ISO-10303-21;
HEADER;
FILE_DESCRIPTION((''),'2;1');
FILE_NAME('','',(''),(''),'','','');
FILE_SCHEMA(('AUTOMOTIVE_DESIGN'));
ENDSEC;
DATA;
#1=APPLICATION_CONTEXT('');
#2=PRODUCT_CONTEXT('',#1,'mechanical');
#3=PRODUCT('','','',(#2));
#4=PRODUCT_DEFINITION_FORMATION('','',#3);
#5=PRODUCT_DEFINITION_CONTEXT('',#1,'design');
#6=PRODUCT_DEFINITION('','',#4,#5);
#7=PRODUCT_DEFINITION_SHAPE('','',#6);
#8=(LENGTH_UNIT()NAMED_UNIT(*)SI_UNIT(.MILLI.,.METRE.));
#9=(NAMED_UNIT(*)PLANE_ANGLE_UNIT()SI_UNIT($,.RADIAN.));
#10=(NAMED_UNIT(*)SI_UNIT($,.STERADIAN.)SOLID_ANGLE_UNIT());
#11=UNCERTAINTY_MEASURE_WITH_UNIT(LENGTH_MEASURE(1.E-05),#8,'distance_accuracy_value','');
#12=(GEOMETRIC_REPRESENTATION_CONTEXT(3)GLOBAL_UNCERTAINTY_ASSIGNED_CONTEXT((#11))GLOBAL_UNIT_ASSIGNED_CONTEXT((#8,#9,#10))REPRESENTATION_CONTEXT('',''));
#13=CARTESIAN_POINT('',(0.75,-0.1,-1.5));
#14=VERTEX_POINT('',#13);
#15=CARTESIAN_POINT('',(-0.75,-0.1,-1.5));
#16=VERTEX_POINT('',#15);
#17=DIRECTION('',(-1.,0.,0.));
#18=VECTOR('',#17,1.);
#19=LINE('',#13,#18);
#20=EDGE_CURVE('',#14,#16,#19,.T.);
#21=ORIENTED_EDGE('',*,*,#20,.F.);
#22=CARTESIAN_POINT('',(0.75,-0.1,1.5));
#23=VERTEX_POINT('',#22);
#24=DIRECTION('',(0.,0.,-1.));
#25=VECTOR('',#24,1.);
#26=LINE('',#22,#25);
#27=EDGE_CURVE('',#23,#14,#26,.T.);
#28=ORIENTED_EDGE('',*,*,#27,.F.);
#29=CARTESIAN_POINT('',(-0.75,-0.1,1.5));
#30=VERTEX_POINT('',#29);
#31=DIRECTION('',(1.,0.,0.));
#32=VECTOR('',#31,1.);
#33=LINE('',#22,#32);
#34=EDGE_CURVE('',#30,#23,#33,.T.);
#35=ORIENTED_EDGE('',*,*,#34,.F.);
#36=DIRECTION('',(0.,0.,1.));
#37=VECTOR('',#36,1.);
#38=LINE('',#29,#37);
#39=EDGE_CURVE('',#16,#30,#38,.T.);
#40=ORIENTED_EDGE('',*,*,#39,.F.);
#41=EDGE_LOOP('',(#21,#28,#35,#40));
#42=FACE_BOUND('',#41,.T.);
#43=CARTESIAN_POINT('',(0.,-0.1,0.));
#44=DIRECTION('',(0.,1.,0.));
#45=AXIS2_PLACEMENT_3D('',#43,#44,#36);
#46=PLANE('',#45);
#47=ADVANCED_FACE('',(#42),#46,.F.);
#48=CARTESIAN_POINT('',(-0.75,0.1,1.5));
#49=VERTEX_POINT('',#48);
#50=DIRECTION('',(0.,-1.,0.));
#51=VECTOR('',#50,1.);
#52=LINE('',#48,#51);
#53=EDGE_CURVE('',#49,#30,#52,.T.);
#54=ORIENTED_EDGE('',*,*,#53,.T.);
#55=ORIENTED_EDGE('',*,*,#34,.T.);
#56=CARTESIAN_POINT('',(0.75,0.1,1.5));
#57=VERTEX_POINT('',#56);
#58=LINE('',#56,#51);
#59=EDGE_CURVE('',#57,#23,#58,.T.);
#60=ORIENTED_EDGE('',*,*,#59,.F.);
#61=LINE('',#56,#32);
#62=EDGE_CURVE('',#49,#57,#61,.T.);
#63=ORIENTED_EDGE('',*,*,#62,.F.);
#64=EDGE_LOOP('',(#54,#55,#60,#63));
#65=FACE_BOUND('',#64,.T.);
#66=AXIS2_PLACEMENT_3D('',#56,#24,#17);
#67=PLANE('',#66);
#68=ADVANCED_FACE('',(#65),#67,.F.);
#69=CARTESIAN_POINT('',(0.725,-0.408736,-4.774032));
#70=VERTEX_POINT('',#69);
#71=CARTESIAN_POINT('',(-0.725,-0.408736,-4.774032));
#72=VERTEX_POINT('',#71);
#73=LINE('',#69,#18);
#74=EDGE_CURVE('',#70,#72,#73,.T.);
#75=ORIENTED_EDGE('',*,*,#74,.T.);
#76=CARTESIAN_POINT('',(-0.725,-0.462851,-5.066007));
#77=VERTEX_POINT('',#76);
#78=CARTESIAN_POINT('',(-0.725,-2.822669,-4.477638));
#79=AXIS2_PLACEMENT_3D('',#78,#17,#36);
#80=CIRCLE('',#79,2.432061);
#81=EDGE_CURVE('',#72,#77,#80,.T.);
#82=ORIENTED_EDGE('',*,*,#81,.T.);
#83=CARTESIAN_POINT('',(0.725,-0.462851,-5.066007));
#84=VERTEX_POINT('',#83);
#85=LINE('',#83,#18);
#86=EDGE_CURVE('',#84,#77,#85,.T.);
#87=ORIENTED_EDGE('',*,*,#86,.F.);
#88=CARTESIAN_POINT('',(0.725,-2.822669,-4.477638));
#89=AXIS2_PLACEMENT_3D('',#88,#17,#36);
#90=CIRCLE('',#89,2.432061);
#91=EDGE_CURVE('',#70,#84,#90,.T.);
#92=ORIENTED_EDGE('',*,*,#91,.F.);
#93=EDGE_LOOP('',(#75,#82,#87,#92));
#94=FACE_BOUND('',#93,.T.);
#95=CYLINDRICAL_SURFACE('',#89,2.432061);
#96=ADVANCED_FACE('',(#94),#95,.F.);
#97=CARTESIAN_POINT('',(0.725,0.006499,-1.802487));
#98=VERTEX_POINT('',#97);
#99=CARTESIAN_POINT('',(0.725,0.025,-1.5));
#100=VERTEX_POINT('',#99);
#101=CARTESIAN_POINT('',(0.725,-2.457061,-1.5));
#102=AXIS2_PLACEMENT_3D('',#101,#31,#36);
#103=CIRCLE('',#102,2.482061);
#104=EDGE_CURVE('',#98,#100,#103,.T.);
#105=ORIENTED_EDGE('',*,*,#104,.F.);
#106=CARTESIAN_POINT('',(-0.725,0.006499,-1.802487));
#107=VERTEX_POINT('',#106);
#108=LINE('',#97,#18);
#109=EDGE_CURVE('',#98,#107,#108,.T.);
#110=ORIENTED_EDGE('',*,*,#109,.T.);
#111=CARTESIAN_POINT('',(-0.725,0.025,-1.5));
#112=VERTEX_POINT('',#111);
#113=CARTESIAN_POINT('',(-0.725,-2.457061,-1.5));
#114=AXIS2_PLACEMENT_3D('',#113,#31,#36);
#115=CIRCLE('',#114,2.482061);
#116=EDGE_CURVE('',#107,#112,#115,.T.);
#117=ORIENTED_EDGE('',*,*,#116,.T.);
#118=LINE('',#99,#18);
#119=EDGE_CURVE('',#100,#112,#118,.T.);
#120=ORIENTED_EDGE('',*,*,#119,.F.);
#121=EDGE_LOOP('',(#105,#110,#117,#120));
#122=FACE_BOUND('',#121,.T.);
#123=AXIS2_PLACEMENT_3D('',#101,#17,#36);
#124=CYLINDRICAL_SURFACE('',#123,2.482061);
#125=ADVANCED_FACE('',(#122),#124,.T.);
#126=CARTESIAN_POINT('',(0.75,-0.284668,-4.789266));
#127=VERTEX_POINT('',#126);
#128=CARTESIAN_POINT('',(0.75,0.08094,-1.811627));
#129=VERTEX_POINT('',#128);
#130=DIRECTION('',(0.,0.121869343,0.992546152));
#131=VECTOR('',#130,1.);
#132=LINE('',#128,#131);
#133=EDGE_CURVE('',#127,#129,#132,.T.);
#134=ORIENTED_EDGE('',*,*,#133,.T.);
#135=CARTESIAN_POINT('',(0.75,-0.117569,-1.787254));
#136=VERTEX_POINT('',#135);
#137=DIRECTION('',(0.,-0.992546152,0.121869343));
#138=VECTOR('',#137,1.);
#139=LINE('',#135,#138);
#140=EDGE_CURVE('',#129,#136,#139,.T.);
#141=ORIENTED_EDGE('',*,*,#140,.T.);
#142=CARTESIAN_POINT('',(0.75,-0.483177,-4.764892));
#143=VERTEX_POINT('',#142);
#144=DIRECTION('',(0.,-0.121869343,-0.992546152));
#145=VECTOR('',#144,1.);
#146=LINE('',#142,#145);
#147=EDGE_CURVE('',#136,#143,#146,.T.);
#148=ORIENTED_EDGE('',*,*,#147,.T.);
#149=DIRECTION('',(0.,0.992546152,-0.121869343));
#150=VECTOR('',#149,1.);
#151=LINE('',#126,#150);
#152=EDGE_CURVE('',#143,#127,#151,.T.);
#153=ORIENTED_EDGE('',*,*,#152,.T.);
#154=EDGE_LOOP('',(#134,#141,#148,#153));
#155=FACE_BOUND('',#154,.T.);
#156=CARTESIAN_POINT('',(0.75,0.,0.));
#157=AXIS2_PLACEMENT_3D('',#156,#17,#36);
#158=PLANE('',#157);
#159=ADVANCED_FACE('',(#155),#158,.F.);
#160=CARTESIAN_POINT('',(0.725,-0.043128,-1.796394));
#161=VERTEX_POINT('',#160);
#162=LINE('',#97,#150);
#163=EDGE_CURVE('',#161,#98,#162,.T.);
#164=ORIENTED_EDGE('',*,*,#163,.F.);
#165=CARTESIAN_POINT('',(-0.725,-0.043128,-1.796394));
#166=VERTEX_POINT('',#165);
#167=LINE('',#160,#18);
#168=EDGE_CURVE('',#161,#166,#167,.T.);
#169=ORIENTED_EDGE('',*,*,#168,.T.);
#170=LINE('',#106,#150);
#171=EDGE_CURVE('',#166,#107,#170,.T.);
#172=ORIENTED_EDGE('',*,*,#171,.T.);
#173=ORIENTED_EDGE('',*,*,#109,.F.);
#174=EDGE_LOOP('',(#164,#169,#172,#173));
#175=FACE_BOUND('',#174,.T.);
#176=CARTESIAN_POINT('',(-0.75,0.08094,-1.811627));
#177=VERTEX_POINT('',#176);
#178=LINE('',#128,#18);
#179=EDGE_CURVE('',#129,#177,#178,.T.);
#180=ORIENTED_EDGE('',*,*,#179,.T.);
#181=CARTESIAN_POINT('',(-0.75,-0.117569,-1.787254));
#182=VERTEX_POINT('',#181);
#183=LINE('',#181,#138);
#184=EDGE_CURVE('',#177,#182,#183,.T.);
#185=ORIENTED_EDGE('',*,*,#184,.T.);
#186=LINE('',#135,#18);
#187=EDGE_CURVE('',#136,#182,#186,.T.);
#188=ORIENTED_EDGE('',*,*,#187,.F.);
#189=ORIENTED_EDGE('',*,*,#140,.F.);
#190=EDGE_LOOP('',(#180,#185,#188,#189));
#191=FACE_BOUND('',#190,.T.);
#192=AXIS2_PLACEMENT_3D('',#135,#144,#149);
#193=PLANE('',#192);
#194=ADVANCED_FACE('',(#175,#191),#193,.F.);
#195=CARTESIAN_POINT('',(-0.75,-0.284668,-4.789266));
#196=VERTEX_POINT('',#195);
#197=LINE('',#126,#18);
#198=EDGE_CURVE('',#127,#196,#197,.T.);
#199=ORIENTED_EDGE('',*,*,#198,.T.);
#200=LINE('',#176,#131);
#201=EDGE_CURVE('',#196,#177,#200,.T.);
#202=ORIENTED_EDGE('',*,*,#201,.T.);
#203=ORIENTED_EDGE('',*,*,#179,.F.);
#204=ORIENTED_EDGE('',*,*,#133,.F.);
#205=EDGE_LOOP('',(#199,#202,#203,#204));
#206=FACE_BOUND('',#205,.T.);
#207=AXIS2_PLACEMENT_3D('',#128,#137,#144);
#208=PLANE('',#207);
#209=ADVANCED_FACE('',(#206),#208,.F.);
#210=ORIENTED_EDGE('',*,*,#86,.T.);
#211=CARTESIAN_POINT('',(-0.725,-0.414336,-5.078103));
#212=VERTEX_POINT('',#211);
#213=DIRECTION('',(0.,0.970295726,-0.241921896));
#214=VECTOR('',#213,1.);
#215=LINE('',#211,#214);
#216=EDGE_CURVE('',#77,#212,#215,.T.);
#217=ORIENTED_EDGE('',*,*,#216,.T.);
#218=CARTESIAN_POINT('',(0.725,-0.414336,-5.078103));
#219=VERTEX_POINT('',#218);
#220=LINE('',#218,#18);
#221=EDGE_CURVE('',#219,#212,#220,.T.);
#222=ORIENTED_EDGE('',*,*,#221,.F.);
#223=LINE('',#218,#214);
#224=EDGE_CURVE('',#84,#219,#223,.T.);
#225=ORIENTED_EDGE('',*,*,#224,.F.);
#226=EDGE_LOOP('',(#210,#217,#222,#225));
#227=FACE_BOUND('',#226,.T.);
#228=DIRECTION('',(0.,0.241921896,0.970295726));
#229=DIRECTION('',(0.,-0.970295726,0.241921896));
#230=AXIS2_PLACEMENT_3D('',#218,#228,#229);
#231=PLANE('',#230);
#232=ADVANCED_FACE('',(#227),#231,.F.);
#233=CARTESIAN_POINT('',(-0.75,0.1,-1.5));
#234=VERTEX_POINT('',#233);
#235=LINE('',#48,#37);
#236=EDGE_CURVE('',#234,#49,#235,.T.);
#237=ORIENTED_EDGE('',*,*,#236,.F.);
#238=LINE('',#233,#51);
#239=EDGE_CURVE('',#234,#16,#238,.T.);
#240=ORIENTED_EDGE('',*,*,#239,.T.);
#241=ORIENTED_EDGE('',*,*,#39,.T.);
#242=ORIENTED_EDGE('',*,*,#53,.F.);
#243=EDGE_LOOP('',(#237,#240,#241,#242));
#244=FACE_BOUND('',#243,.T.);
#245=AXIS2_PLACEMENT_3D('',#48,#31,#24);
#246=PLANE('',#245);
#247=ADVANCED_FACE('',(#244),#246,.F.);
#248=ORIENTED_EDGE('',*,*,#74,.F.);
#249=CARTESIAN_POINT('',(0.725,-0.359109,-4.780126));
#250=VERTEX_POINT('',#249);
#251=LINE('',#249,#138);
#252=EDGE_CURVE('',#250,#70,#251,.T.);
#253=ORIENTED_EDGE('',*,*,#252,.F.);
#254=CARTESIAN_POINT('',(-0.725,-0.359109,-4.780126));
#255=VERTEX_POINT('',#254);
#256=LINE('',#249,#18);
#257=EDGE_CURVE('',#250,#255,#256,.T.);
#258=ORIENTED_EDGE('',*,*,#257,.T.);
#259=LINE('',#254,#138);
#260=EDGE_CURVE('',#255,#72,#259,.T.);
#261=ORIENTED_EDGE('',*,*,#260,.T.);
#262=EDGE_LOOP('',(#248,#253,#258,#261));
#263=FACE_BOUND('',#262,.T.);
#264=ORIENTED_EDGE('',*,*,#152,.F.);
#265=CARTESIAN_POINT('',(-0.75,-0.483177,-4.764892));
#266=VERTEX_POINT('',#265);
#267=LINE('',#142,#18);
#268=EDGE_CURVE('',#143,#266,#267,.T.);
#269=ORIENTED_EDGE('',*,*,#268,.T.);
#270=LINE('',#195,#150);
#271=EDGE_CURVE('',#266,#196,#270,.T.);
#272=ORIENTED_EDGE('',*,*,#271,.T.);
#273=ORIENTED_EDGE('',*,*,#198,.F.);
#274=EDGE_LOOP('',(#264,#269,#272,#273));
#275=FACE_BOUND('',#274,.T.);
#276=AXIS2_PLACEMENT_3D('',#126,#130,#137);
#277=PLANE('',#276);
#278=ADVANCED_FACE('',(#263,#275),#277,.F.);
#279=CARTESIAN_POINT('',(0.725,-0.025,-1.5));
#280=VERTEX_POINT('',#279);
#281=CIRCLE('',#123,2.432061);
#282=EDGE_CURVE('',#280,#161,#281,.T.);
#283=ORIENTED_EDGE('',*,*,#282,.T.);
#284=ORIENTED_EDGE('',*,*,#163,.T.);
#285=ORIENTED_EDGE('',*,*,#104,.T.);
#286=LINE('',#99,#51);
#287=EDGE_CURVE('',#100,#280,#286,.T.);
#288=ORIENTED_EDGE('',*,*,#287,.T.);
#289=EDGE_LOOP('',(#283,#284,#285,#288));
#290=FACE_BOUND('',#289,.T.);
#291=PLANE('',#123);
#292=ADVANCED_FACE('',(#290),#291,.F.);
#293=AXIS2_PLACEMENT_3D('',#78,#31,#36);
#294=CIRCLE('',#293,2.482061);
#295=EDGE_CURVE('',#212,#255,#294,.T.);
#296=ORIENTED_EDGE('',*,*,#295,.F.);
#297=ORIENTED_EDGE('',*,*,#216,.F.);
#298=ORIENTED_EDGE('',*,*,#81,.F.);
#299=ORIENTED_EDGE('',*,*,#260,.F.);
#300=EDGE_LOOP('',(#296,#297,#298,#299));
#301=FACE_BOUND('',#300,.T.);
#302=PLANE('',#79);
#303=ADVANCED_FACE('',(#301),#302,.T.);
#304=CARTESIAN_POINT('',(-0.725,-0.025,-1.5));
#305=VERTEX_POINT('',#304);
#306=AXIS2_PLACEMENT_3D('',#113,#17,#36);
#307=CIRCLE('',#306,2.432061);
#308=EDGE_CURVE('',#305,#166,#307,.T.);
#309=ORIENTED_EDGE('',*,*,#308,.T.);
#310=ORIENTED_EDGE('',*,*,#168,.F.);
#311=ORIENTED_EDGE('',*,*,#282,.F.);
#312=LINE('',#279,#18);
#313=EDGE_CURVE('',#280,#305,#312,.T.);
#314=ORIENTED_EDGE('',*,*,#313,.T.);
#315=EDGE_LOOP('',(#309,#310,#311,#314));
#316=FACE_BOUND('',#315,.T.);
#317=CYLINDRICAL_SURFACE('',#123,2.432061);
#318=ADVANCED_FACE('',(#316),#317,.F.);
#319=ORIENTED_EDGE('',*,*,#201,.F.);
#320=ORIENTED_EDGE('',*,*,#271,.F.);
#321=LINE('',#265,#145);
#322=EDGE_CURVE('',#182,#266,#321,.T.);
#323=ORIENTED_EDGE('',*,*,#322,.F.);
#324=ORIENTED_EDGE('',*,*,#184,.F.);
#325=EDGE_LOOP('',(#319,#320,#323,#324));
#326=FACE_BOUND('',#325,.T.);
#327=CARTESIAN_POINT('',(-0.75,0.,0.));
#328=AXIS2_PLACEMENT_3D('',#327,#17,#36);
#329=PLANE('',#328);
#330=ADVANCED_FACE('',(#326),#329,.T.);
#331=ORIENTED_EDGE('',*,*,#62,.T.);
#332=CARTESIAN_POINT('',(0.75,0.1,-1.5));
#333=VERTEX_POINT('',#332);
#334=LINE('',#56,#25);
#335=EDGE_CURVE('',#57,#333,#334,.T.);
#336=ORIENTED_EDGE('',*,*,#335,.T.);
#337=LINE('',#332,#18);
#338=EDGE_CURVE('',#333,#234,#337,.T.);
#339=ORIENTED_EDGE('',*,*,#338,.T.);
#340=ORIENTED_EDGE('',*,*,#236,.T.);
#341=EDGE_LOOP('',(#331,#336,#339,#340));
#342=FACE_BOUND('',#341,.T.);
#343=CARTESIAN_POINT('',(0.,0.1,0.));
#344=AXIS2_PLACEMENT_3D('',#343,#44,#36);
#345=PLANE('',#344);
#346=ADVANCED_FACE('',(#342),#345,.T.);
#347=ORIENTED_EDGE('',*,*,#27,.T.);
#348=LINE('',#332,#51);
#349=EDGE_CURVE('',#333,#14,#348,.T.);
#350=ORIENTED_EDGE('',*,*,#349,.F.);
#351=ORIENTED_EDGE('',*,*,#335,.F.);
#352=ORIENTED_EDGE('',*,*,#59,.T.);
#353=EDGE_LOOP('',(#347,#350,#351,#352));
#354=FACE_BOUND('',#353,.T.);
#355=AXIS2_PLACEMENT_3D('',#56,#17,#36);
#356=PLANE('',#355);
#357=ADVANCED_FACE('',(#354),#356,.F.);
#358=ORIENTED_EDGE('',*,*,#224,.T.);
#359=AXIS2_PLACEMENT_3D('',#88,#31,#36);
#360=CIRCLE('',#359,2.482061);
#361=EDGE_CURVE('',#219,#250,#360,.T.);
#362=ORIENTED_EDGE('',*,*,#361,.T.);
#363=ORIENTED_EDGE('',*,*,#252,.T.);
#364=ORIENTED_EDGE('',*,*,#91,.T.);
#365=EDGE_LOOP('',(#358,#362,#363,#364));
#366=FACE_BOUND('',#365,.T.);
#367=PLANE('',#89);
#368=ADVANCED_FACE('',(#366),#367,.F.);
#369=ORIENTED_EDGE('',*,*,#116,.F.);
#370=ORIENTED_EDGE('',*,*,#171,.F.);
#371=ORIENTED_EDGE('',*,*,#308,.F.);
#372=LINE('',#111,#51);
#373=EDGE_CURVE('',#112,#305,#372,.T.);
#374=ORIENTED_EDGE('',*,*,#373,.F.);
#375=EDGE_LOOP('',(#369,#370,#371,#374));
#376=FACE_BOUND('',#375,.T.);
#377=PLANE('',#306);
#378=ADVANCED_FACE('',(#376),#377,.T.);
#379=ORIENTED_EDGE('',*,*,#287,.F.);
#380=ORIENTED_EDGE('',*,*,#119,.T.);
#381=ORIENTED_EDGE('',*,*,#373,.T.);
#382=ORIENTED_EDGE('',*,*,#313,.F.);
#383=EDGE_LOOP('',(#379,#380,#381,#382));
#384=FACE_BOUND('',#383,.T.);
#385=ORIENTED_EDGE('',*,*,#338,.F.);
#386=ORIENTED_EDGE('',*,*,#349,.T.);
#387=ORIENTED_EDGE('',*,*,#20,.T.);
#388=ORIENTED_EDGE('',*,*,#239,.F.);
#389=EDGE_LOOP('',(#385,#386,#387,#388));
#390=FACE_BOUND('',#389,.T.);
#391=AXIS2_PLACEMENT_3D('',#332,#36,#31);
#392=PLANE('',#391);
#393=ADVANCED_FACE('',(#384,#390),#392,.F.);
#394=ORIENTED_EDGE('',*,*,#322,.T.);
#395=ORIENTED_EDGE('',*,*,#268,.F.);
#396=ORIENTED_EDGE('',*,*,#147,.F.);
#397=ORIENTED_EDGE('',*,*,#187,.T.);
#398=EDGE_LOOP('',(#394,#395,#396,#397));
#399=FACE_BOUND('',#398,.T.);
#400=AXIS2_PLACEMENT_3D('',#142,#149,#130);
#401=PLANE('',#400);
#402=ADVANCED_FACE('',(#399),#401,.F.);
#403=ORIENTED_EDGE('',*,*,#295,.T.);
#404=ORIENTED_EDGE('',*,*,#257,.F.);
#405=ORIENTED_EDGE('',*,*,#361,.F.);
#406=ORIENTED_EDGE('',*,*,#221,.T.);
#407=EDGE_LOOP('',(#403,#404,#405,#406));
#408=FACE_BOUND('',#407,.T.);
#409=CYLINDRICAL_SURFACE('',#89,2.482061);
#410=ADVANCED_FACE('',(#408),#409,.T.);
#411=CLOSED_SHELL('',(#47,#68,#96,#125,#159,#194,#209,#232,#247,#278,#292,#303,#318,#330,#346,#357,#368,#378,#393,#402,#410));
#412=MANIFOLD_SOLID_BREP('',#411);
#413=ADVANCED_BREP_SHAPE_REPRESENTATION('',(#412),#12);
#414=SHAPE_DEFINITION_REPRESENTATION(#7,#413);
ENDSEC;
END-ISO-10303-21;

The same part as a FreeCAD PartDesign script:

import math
import FreeCAD as App
import Part
import Sketcher
Q = App.Units.Quantity

doc = App.newDocument("Part")
body = doc.addObject("PartDesign::Body", "Body")

sketch1 = doc.addObject("Sketcher::SketchObject", "Sketch")
body.addObject(sketch1)
sketch1.AttachmentSupport = (doc.XZ_Plane, [""])
sketch1.MapMode = "FlatFace"
sketch1.addGeometry([
    Part.LineSegment(App.Vector(-0.75, -1.5, 0), App.Vector(-0.75, 1.5, 0)),
    Part.LineSegment(App.Vector(-0.75, 1.5, 0), App.Vector(0.75, 1.5, 0)),
    Part.LineSegment(App.Vector(0.75, 1.5, 0), App.Vector(0.75, -1.5, 0)),
    Part.LineSegment(App.Vector(0.75, -1.5, 0), App.Vector(-0.75, -1.5, 0)),
], False)
sketch1.addConstraint([
    Sketcher.Constraint("Coincident", 0, 2, 1, 1),
    Sketcher.Constraint("Coincident", 1, 2, 2, 1),
    Sketcher.Constraint("Coincident", 2, 2, 3, 1),
    Sketcher.Constraint("Coincident", 3, 2, 0, 1),
    Sketcher.Constraint("Vertical", 0),
    Sketcher.Constraint("Horizontal", 1),
    Sketcher.Constraint("Vertical", 2),
    Sketcher.Constraint("Horizontal", 3),
    Sketcher.Constraint("Symmetric", 0, 2, 2, 2, -1, 1),
    Sketcher.Constraint("DistanceY", 0, 1, 0, 2, 3.0),
    Sketcher.Constraint("DistanceX", 1, 1, 1, 2, 1.5),
])
pad1 = doc.addObject("PartDesign::Pad", "Pad")
body.addObject(pad1)
pad1.Profile = sketch1
pad1.Length = 0.2
pad1.Midplane = True

sketch2 = doc.addObject("Sketcher::SketchObject", "Sketch001")
body.addObject(sketch2)
sketch2.AttachmentSupport = (doc.YZ_Plane, [""])
sketch2.MapMode = "FlatFace"
sketch2.addGeometry([
    Part.LineSegment(App.Vector(0.025, -1.5, 0), App.Vector(-0.025, -1.5, 0)),
    Part.ArcOfCircle(Part.Circle(App.Vector(-2.457061, -1.5, 0), App.Vector(0, 0, 1), 2.432061), math.radians(-7.000001), math.radians(0)),
    Part.LineSegment(App.Vector(-0.043128, -1.796394, 0), App.Vector(0.006499, -1.802487, 0)),
    Part.ArcOfCircle(Part.Circle(App.Vector(-2.457062, -1.5, 0), App.Vector(0, 0, 1), 2.482062), math.radians(-7), math.radians(0)),
], False)
sketch2.addConstraint([
    Sketcher.Constraint("Coincident", 0, 2, 1, 2),
    Sketcher.Constraint("Coincident", 1, 1, 2, 1),
    Sketcher.Constraint("Coincident", 2, 2, 3, 1),
    Sketcher.Constraint("Coincident", 3, 2, 0, 1),
    Sketcher.Constraint("Horizontal", 0),
    Sketcher.Constraint("Coincident", 3, 3, 1, 3),
    Sketcher.Constraint("Horizontal", 3, 3, 0, 2),
    Sketcher.Constraint("Angle", 2, Q("-7 deg")),
    Sketcher.Constraint("DistanceX", 0, 2, 0, 1, 0.05),
    Sketcher.Constraint("DistanceY", 1, 3, -1, 1, 1.5),
    Sketcher.Constraint("Radius", 1, 2.432061),
    Sketcher.Constraint("DistanceX", 0, 2, -1, 1, 0.025),
    Sketcher.Constraint("DistanceX", -1, 1, 2, 2, 0.006499),
])
pad2 = doc.addObject("PartDesign::Pad", "Pad001")
body.addObject(pad2)
pad2.Profile = sketch2
pad2.Length = 1.45
pad2.Midplane = True

sketch3 = doc.addObject("Sketcher::SketchObject", "Sketch002")
body.addObject(sketch3)
sketch3.AttachmentSupport = (doc.YZ_Plane, [""])
sketch3.MapMode = "FlatFace"
sketch3.addGeometry([
    Part.LineSegment(App.Vector(0.08094, -1.811627, 0), App.Vector(-0.117569, -1.787254, 0)),
    Part.LineSegment(App.Vector(-0.117569, -1.787254, 0), App.Vector(-0.483177, -4.764892, 0)),
    Part.LineSegment(App.Vector(-0.483177, -4.764892, 0), App.Vector(-0.284668, -4.789266, 0)),
    Part.LineSegment(App.Vector(-0.284668, -4.789266, 0), App.Vector(0.08094, -1.811627, 0)),
], False)
sketch3.addConstraint([
    Sketcher.Constraint("Coincident", 0, 2, 1, 1),
    Sketcher.Constraint("Coincident", 1, 2, 2, 1),
    Sketcher.Constraint("Coincident", 2, 2, 3, 1),
    Sketcher.Constraint("Coincident", 3, 2, 0, 1),
    Sketcher.Constraint("Perpendicular", 0, 1),
    Sketcher.Constraint("Perpendicular", 1, 2),
    Sketcher.Constraint("Perpendicular", 2, 3),
    Sketcher.Constraint("Angle", 0, Q("173 deg")),
    Sketcher.Constraint("Distance", 1, 3.0),
    Sketcher.Constraint("Distance", 0, 0.2),
    Sketcher.Constraint("DistanceX", 0, 2, -1, 1, 0.117569),
    Sketcher.Constraint("DistanceY", 1, 2, -1, 1, 4.764892),
])
pad3 = doc.addObject("PartDesign::Pad", "Pad002")
body.addObject(pad3)
pad3.Profile = sketch3
pad3.Length = 1.5
pad3.Midplane = True

sketch4 = doc.addObject("Sketcher::SketchObject", "Sketch003")
body.addObject(sketch4)
sketch4.AttachmentSupport = (doc.YZ_Plane, [""])
sketch4.MapMode = "FlatFace"
sketch4.addGeometry([
    Part.LineSegment(App.Vector(-0.359109, -4.780126, 0), App.Vector(-0.408736, -4.774032, 0)),
    Part.ArcOfCircle(Part.Circle(App.Vector(-2.822669, -4.477639, 0), App.Vector(0, 0, 1), 2.432061), math.radians(-14), math.radians(-7)),
    Part.LineSegment(App.Vector(-0.462851, -5.066007, 0), App.Vector(-0.414336, -5.078103, 0)),
    Part.ArcOfCircle(Part.Circle(App.Vector(-2.822669, -4.477638, 0), App.Vector(0, 0, 1), 2.482061), math.radians(-14), math.radians(-7)),
], False)
sketch4.addConstraint([
    Sketcher.Constraint("Coincident", 0, 2, 1, 2),
    Sketcher.Constraint("Coincident", 1, 1, 2, 1),
    Sketcher.Constraint("Coincident", 2, 2, 3, 1),
    Sketcher.Constraint("Coincident", 3, 2, 0, 1),
    Sketcher.Constraint("Coincident", 3, 3, 1, 3),
    Sketcher.Constraint("Angle", 0, Q("173 deg")),
    Sketcher.Constraint("Angle", 2, Q("-14 deg")),
    Sketcher.Constraint("Distance", 0, 0.05),
    Sketcher.Constraint("Radius", 1, 2.432061),
    Sketcher.Constraint("DistanceX", 2, 2, 0, 2, 0.0056),
    Sketcher.Constraint("DistanceX", 1, 3, -1, 1, 2.822669),
    Sketcher.Constraint("DistanceY", 1, 3, -1, 1, 4.477639),
    Sketcher.Constraint("DistanceX", 1, 1, -1, 1, 0.462851),
])
pad4 = doc.addObject("PartDesign::Pad", "Pad003")
body.addObject(pad4)
pad4.Profile = sketch4
pad4.Length = 1.45
pad4.Midplane = True

doc.recompute()
